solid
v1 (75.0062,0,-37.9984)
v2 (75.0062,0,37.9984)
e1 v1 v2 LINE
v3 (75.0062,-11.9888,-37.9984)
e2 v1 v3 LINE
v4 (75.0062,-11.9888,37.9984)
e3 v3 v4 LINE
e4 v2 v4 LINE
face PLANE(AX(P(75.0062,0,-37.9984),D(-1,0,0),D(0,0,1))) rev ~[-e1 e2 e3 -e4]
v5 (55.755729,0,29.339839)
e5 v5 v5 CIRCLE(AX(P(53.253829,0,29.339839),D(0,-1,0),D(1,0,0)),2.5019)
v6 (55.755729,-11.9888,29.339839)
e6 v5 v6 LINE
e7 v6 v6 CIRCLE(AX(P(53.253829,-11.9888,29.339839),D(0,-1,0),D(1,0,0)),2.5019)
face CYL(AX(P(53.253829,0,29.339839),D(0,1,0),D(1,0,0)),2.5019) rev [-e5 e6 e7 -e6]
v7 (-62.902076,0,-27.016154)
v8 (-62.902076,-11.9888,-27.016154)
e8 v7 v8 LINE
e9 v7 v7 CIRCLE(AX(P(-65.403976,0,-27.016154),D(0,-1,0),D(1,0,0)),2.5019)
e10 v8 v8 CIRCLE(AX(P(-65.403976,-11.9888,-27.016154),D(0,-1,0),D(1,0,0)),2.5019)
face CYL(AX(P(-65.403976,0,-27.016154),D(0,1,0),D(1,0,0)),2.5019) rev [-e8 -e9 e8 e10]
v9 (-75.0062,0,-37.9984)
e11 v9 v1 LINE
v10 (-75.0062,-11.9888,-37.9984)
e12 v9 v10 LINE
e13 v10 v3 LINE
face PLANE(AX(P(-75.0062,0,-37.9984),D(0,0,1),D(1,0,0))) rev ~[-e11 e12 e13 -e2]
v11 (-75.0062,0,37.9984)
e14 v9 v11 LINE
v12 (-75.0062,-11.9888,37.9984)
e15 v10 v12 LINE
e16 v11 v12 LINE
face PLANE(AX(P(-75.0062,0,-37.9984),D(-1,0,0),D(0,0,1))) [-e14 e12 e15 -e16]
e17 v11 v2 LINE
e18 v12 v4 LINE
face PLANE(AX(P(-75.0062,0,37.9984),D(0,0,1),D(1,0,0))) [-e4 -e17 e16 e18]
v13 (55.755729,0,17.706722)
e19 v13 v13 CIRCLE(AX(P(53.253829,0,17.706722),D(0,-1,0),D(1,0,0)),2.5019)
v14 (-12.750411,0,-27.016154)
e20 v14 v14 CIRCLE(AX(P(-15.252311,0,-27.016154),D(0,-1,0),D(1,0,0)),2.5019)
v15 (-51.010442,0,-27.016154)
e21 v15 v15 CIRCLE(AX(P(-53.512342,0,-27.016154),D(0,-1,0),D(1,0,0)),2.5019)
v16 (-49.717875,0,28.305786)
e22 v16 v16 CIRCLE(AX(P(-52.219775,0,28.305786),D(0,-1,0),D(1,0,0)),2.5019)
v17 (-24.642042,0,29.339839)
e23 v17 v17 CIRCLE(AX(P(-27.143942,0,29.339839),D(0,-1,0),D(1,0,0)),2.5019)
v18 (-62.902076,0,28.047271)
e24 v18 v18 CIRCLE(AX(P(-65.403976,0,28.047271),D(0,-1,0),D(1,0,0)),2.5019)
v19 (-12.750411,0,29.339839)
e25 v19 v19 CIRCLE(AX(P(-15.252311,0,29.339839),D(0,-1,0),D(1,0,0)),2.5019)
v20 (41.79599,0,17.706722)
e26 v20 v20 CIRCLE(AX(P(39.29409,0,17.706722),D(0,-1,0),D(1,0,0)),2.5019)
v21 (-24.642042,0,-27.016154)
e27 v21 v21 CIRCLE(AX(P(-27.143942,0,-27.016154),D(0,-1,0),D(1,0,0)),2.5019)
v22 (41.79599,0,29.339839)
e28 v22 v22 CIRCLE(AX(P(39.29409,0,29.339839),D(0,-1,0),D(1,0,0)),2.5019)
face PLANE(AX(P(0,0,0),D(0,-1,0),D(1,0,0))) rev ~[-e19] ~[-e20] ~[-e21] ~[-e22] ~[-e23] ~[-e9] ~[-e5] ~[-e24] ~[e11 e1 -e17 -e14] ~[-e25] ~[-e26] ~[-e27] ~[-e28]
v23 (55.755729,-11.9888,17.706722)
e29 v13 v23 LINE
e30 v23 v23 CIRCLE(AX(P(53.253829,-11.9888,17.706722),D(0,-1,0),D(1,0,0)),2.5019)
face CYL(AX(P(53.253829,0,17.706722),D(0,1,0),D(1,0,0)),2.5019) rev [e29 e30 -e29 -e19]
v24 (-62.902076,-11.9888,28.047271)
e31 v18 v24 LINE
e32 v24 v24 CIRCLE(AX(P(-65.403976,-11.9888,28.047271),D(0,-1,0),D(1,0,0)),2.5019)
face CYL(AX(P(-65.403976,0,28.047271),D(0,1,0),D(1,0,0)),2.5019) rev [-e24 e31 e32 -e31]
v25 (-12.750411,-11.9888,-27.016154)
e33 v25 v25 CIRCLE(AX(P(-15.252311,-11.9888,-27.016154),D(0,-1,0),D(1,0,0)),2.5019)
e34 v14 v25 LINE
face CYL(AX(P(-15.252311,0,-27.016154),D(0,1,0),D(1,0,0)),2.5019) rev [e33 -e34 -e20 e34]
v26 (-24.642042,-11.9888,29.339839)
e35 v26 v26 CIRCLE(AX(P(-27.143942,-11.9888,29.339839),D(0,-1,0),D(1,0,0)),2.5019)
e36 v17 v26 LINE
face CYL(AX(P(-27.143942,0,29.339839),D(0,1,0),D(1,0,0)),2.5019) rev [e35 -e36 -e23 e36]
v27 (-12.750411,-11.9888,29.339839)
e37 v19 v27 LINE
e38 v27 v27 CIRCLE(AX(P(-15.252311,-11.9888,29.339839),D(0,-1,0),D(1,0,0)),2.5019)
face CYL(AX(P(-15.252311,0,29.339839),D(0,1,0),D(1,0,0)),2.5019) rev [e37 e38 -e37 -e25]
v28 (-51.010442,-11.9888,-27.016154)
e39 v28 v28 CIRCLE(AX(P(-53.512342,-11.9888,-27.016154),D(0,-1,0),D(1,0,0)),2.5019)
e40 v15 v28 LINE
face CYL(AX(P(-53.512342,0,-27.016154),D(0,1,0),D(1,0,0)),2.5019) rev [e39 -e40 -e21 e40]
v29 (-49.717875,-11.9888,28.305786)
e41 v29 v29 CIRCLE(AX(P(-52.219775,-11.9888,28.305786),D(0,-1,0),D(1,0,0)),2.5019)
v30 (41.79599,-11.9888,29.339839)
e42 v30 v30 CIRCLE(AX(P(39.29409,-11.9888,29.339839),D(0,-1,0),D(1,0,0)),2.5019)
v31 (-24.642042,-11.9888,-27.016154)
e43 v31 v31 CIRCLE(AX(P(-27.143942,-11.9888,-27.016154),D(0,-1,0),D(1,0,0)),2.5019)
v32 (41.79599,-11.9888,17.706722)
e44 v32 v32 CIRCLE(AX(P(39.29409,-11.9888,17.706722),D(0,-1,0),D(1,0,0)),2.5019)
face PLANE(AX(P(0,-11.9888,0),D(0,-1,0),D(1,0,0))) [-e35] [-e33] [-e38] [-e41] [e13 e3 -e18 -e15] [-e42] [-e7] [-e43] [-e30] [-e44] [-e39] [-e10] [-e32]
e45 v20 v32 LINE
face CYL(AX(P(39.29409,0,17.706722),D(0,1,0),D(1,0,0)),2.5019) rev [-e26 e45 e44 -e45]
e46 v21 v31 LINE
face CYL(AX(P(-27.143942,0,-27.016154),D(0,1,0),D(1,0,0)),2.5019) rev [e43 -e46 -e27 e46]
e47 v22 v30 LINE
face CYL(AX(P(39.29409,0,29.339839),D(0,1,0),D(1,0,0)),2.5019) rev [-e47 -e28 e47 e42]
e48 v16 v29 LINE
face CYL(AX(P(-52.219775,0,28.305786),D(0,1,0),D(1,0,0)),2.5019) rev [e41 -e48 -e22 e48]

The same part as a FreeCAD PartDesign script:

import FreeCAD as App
import Part
import Sketcher
Q = App.Units.Quantity

doc = App.newDocument("Part")
params = doc.addObject("Spreadsheet::Sheet", "Params")
for row, (alias, value) in enumerate([
    ("sketch1_diameter", "0.197 in"),
    ("sketch1_width", "5.906 in"),
    ("sketch1_height", "2.992 in"),
    ("pad1_length", "0.472 in"),
], start=1):
    params.set(f"A{row}", alias)
    params.set(f"B{row}", "=" + value)
    params.setAlias(f"B{row}", alias)

body = doc.addObject("PartDesign::Body", "Body")

# Sketch on XZ plane
sketch1 = body.newObject("Sketcher::SketchObject", "Sketch")
sketch1.AttachmentSupport = (doc.getObject("XZ_Plane"), [""])
sketch1.MapMode = "FlatFace"
sketch1.addGeometry([
    Part.LineSegment(App.Vector(-75, 38, 0), App.Vector(-75, -38, 0)),  # 0
    Part.LineSegment(App.Vector(-75, -38, 0), App.Vector(75, -38, 0)),  # 1
    Part.LineSegment(App.Vector(75, -38, 0), App.Vector(75, 38, 0)),  # 2
    Part.LineSegment(App.Vector(75, 38, 0), App.Vector(-75, 38, 0)),  # 3
    Part.Circle(App.Vector(-65.4, -27, 0), App.Vector(0, 0, 1), 2.5),  # 4
    Part.Circle(App.Vector(-53.5, -27, 0), App.Vector(0, 0, 1), 2.5),  # 5
    Part.Circle(App.Vector(-27.1, -27, 0), App.Vector(0, 0, 1), 2.5),  # 6
    Part.Circle(App.Vector(-15.3, -27, 0), App.Vector(0, 0, 1), 2.5),  # 7
    Part.Circle(App.Vector(-65.4, 28, 0), App.Vector(0, 0, 1), 2.5),  # 8
    Part.Circle(App.Vector(-52.2, 28.3, 0), App.Vector(0, 0, 1), 2.5),  # 9
    Part.Circle(App.Vector(-27.1, 29.3, 0), App.Vector(0, 0, 1), 2.5),  # 10
    Part.Circle(App.Vector(-15.3, 29.3, 0), App.Vector(0, 0, 1), 2.5),  # 11
    Part.Circle(App.Vector(39.3, 17.7, 0), App.Vector(0, 0, 1), 2.5),  # 12
    Part.Circle(App.Vector(53.3, 17.7, 0), App.Vector(0, 0, 1), 2.5),  # 13
    Part.Circle(App.Vector(39.3, 29.3, 0), App.Vector(0, 0, 1), 2.5),  # 14
    Part.Circle(App.Vector(53.3, 29.3, 0), App.Vector(0, 0, 1), 2.5),  # 15
], False)
sketch1.addConstraint([
    Sketcher.Constraint("Coincident", 0, 2, 1, 1),
    Sketcher.Constraint("Coincident", 1, 2, 2, 1),
    Sketcher.Constraint("Coincident", 2, 2, 3, 1),
    Sketcher.Constraint("Coincident", 3, 2, 0, 1),
    Sketcher.Constraint("Vertical", 0),
    Sketcher.Constraint("Horizontal", 1),
    Sketcher.Constraint("Vertical", 2),
    Sketcher.Constraint("Horizontal", 3),
    Sketcher.Constraint("Equal", 4, 5),
    Sketcher.Constraint("Equal", 5, 6),
    Sketcher.Constraint("Equal", 6, 7),
    Sketcher.Constraint("Equal", 7, 8),
    Sketcher.Constraint("Equal", 8, 9),
    Sketcher.Constraint("Equal", 9, 10),
    Sketcher.Constraint("Equal", 10, 11),
    Sketcher.Constraint("Equal", 11, 12),
    Sketcher.Constraint("Equal", 12, 13),
    Sketcher.Constraint("Equal", 13, 14),
    Sketcher.Constraint("Equal", 14, 15),
    Sketcher.Constraint("Symmetric", 0, 2, 2, 2, -1, 1),
    Sketcher.Constraint("Horizontal", 4, 3, 5, 3),
    Sketcher.Constraint("Horizontal", 5, 3, 6, 3),
    Sketcher.Constraint("Horizontal", 6, 3, 7, 3),
    Sketcher.Constraint("Horizontal", 10, 3, 11, 3),
    Sketcher.Constraint("Horizontal", 12, 3, 13, 3),
    Sketcher.Constraint("Horizontal", 11, 3, 14, 3),
    Sketcher.Constraint("Horizontal", 14, 3, 15, 3),
    Sketcher.Constraint("Vertical", 4, 3, 8, 3),
    Sketcher.Constraint("Vertical", 6, 3, 10, 3),
    Sketcher.Constraint("Vertical", 7, 3, 11, 3),
    Sketcher.Constraint("Vertical", 12, 3, 14, 3),
    Sketcher.Constraint("Vertical", 13, 3, 15, 3),
    Sketcher.Constraint("Diameter", 4, Q("0.197 in")),
    Sketcher.Constraint("DistanceX", 1, 1, 1, 2, Q("5.906 in")),
    Sketcher.Constraint("DistanceY", 0, 2, 0, 1, Q("2.992 in")),
    Sketcher.Constraint("DistanceX", 5, 3, 6, 3, Q("26.3684 mm")),
    Sketcher.Constraint("DistanceX", 8, 3, 9, 3, Q("13.184201 mm")),
    Sketcher.Constraint("DistanceX", 11, 3, 12, 3, Q("54.546401 mm")),
    Sketcher.Constraint("DistanceX", 5, 3, -1, 1, Q("53.512342 mm")),
    Sketcher.Constraint("DistanceX", 7, 3, -1, 1, Q("15.252311 mm")),
    Sketcher.Constraint("DistanceY", -1, 1, 8, 3, Q("28.047271 mm")),
    Sketcher.Constraint("DistanceY", -1, 1, 10, 3, Q("29.339839 mm")),
    Sketcher.Constraint("DistanceY", -1, 1, 12, 3, Q("17.706722 mm")),
    Sketcher.Constraint("DistanceX", -1, 1, 13, 3, Q("53.253829 mm")),
    Sketcher.Constraint("DistanceY", 5, 3, 9, 3, Q("55.32194 mm")),
    Sketcher.Constraint("DistanceX", 4, 3, -1, 1, Q("65.403976 mm")),
    Sketcher.Constraint("DistanceY", 4, 3, -1, 1, Q("27.016154 mm")),
])
sketch1.setExpression("Constraints[32]", "Params.sketch1_diameter")
sketch1.setExpression("Constraints[33]", "Params.sketch1_width")
sketch1.setExpression("Constraints[34]", "Params.sketch1_height")
pad1 = body.newObject("PartDesign::Pad", "Pad")
pad1.Profile = sketch1
pad1.setExpression("Length", "Params.pad1_length")

doc.recompute()
